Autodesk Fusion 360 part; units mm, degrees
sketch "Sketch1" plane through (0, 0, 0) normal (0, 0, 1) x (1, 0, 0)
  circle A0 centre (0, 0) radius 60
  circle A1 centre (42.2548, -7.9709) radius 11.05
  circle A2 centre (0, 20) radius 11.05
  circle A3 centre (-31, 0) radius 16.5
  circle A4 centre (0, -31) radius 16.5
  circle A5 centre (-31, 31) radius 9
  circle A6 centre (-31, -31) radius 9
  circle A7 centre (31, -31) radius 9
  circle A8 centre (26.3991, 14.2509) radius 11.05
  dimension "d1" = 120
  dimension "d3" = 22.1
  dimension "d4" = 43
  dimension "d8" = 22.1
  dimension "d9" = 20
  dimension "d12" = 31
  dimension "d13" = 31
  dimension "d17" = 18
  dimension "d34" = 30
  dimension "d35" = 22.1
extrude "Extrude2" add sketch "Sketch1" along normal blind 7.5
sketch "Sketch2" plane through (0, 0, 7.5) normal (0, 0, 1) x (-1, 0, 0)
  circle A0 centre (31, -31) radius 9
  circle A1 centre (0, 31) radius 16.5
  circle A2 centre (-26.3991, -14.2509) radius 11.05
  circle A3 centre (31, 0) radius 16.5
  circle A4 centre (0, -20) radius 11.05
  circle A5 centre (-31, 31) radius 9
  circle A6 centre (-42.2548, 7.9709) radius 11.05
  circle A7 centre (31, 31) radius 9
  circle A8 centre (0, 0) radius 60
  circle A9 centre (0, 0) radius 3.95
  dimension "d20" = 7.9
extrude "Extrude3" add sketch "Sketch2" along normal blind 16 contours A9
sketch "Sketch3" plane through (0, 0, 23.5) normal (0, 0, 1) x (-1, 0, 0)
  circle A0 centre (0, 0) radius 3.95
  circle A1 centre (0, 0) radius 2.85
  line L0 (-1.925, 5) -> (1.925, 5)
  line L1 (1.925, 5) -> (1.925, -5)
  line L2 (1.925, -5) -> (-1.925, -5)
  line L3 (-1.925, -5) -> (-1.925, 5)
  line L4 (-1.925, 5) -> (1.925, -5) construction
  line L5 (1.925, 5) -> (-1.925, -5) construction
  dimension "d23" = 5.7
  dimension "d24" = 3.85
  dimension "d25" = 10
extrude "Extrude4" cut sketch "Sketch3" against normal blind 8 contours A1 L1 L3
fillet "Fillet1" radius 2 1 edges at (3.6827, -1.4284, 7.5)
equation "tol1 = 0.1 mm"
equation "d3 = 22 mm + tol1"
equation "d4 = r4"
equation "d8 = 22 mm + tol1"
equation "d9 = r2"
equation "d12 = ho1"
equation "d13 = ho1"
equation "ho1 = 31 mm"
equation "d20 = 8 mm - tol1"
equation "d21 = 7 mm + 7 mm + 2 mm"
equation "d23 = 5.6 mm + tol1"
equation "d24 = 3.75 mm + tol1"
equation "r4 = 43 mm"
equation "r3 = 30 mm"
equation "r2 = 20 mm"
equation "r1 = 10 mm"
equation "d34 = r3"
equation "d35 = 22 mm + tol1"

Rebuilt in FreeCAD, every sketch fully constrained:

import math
import FreeCAD as App
import Part
import Sketcher

V = App.Vector


def edges_at(feature, points):
    """Names of the edges that pass closest to the given points."""
    edges = feature.Shape.Edges
    near = lambda p: min(range(len(edges)), key=lambda i: edges[i].distToShape(Part.Vertex(*p))[0])
    return sorted({f"Edge{near(p) + 1}" for p in points})

doc = App.newDocument("Part")
body = doc.addObject("PartDesign::Body", "Body")

# Sketch on XY plane
sketch1 = body.newObject("Sketcher::SketchObject", "Sketch")
sketch1.AttachmentSupport = (doc.getObject("XY_Plane"), [""])
sketch1.MapMode = "FlatFace"
sketch1.addGeometry([
    Part.Circle(V(0, 0, 0), V(0, 0, 1), 60),  # 0
    Part.Circle(V(-31, -31, 0), V(0, 0, 1), 9),  # 1
    Part.Circle(V(0, -31, 0), V(0, 0, 1), 16),  # 2
    Part.Circle(V(31, -31, 0), V(0, 0, 1), 9),  # 3
    Part.Circle(V(42, -8, 0), V(0, 0, 1), 11),  # 4
    Part.Circle(V(-31, 0, 0), V(0, 0, 1), 16),  # 5
    Part.Circle(V(-31, 31, 0), V(0, 0, 1), 9),  # 6
    Part.Circle(V(26, 14, 0), V(0, 0, 1), 11),  # 7
    Part.Circle(V(0, 20, 0), V(0, 0, 1), 11),  # 8
], False)
sketch1.addConstraint([
    Sketcher.Constraint("Coincident", 0, 3, -1, 1),
    Sketcher.Constraint("Equal", 1, 3),
    Sketcher.Constraint("Equal", 2, 5),
    Sketcher.Constraint("Equal", 3, 6),
    Sketcher.Constraint("Equal", 4, 7),
    Sketcher.Constraint("Equal", 7, 8),
    Sketcher.Constraint("Symmetric", 3, 3, 6, 3, -1, 1),
    Sketcher.Constraint("Symmetric", 1, 3, 3, 3, -2),
    Sketcher.Constraint("PointOnObject", 2, 3, -2),
    Sketcher.Constraint("PointOnObject", 5, 3, -1),
    Sketcher.Constraint("PointOnObject", 8, 3, -2),
    Sketcher.Constraint("Horizontal", 1, 3, 2, 3),
    Sketcher.Constraint("Vertical", 1, 3, 5, 3),
    Sketcher.Constraint("Diameter", 0, 120.0),
    Sketcher.Constraint("Diameter", 1, 18.0),
    Sketcher.Constraint("Diameter", 4, 22.1),
    Sketcher.Constraint("Diameter", 2, 33.0),
    Sketcher.Constraint("DistanceX", 1, 3, -1, 1, 31.0),
    Sketcher.Constraint("DistanceY", 1, 3, -1, 1, 31.0),
    Sketcher.Constraint("DistanceY", -1, 1, 8, 3, 20.0),
    Sketcher.Constraint("DistanceY", 4, 3, -1, 1, 7.971),
    Sketcher.Constraint("DistanceX", -1, 1, 7, 3, 26.399),
    Sketcher.Constraint("DistanceY", -1, 1, 7, 3, 14.251),
    Sketcher.Constraint("DistanceX", -1, 1, 4, 3, 42.2548),
])
pad1 = body.newObject("PartDesign::Pad", "Pad")
pad1.Profile = sketch1
pad1.Length = 7.5

# Sketch on XY plane
sketch2 = body.newObject("Sketcher::SketchObject", "Sketch001")
sketch2.AttachmentSupport = (doc.getObject("XY_Plane"), [""])
sketch2.MapMode = "FlatFace"
sketch2.AttachmentOffset = App.Placement(V(0, 0, 7.5), App.Rotation())
sketch2.addGeometry(Part.Circle(V(0, 0, 0), V(0, 0, 1), 4), False)
sketch2.addConstraint([
    Sketcher.Constraint("Coincident", 0, 3, -1, 1),
    Sketcher.Constraint("Diameter", 0, 7.9),
])
pad2 = body.newObject("PartDesign::Pad", "Pad001")
pad2.Profile = sketch2
pad2.Length = 16

# Sketch on XY plane
sketch3 = body.newObject("Sketcher::SketchObject", "Sketch002")
sketch3.AttachmentSupport = (doc.getObject("XY_Plane"), [""])
sketch3.MapMode = "FlatFace"
sketch3.AttachmentOffset = App.Placement(V(0, 0, 23.5), App.Rotation())
sketch3.addGeometry([
    Part.LineSegment(V(-1.9, 2.1, 0), V(-1.9, -2.1, 0)),
    Part.ArcOfCircle(Part.Circle(V(0, 0, 0), V(0, 0, 1), 2.9), math.radians(-132), math.radians(-48)),
    Part.LineSegment(V(1.9, -2.1, 0), V(1.9, 2.1, 0)),
    Part.ArcOfCircle(Part.Circle(V(0, 0, 0), V(0, 0, 1), 2.9), math.radians(48), math.radians(132)),
], False)
sketch3.addConstraint([
    Sketcher.Constraint("Coincident", 0, 2, 1, 1),
    Sketcher.Constraint("Coincident", 1, 2, 2, 1),
    Sketcher.Constraint("Coincident", 2, 2, 3, 1),
    Sketcher.Constraint("Coincident", 3, 2, 0, 1),
    Sketcher.Constraint("Vertical", 0),
    Sketcher.Constraint("Vertical", 2),
    Sketcher.Constraint("Coincident", 1, 3, -1, 1),
    Sketcher.Constraint("Coincident", 3, 3, -1, 1),
    Sketcher.Constraint("Equal", 1, 3),
    Sketcher.Constraint("Horizontal", 0, 2, 1, 2),
    Sketcher.Constraint("Radius", 1, 2.85),
    Sketcher.Constraint("DistanceX", 0, 2, 1, 2, 3.85),
])
pocket1 = body.newObject("PartDesign::Pocket", "Pocket")
pocket1.Profile = sketch3
pocket1.Length = 8
doc.recompute()

fillet = body.newObject("PartDesign::Fillet", "Fillet")
fillet.Base = (pocket1, edges_at(pocket1, [(3.683, -1.428, 7.5)]))
fillet.Radius = 2

doc.recompute()
